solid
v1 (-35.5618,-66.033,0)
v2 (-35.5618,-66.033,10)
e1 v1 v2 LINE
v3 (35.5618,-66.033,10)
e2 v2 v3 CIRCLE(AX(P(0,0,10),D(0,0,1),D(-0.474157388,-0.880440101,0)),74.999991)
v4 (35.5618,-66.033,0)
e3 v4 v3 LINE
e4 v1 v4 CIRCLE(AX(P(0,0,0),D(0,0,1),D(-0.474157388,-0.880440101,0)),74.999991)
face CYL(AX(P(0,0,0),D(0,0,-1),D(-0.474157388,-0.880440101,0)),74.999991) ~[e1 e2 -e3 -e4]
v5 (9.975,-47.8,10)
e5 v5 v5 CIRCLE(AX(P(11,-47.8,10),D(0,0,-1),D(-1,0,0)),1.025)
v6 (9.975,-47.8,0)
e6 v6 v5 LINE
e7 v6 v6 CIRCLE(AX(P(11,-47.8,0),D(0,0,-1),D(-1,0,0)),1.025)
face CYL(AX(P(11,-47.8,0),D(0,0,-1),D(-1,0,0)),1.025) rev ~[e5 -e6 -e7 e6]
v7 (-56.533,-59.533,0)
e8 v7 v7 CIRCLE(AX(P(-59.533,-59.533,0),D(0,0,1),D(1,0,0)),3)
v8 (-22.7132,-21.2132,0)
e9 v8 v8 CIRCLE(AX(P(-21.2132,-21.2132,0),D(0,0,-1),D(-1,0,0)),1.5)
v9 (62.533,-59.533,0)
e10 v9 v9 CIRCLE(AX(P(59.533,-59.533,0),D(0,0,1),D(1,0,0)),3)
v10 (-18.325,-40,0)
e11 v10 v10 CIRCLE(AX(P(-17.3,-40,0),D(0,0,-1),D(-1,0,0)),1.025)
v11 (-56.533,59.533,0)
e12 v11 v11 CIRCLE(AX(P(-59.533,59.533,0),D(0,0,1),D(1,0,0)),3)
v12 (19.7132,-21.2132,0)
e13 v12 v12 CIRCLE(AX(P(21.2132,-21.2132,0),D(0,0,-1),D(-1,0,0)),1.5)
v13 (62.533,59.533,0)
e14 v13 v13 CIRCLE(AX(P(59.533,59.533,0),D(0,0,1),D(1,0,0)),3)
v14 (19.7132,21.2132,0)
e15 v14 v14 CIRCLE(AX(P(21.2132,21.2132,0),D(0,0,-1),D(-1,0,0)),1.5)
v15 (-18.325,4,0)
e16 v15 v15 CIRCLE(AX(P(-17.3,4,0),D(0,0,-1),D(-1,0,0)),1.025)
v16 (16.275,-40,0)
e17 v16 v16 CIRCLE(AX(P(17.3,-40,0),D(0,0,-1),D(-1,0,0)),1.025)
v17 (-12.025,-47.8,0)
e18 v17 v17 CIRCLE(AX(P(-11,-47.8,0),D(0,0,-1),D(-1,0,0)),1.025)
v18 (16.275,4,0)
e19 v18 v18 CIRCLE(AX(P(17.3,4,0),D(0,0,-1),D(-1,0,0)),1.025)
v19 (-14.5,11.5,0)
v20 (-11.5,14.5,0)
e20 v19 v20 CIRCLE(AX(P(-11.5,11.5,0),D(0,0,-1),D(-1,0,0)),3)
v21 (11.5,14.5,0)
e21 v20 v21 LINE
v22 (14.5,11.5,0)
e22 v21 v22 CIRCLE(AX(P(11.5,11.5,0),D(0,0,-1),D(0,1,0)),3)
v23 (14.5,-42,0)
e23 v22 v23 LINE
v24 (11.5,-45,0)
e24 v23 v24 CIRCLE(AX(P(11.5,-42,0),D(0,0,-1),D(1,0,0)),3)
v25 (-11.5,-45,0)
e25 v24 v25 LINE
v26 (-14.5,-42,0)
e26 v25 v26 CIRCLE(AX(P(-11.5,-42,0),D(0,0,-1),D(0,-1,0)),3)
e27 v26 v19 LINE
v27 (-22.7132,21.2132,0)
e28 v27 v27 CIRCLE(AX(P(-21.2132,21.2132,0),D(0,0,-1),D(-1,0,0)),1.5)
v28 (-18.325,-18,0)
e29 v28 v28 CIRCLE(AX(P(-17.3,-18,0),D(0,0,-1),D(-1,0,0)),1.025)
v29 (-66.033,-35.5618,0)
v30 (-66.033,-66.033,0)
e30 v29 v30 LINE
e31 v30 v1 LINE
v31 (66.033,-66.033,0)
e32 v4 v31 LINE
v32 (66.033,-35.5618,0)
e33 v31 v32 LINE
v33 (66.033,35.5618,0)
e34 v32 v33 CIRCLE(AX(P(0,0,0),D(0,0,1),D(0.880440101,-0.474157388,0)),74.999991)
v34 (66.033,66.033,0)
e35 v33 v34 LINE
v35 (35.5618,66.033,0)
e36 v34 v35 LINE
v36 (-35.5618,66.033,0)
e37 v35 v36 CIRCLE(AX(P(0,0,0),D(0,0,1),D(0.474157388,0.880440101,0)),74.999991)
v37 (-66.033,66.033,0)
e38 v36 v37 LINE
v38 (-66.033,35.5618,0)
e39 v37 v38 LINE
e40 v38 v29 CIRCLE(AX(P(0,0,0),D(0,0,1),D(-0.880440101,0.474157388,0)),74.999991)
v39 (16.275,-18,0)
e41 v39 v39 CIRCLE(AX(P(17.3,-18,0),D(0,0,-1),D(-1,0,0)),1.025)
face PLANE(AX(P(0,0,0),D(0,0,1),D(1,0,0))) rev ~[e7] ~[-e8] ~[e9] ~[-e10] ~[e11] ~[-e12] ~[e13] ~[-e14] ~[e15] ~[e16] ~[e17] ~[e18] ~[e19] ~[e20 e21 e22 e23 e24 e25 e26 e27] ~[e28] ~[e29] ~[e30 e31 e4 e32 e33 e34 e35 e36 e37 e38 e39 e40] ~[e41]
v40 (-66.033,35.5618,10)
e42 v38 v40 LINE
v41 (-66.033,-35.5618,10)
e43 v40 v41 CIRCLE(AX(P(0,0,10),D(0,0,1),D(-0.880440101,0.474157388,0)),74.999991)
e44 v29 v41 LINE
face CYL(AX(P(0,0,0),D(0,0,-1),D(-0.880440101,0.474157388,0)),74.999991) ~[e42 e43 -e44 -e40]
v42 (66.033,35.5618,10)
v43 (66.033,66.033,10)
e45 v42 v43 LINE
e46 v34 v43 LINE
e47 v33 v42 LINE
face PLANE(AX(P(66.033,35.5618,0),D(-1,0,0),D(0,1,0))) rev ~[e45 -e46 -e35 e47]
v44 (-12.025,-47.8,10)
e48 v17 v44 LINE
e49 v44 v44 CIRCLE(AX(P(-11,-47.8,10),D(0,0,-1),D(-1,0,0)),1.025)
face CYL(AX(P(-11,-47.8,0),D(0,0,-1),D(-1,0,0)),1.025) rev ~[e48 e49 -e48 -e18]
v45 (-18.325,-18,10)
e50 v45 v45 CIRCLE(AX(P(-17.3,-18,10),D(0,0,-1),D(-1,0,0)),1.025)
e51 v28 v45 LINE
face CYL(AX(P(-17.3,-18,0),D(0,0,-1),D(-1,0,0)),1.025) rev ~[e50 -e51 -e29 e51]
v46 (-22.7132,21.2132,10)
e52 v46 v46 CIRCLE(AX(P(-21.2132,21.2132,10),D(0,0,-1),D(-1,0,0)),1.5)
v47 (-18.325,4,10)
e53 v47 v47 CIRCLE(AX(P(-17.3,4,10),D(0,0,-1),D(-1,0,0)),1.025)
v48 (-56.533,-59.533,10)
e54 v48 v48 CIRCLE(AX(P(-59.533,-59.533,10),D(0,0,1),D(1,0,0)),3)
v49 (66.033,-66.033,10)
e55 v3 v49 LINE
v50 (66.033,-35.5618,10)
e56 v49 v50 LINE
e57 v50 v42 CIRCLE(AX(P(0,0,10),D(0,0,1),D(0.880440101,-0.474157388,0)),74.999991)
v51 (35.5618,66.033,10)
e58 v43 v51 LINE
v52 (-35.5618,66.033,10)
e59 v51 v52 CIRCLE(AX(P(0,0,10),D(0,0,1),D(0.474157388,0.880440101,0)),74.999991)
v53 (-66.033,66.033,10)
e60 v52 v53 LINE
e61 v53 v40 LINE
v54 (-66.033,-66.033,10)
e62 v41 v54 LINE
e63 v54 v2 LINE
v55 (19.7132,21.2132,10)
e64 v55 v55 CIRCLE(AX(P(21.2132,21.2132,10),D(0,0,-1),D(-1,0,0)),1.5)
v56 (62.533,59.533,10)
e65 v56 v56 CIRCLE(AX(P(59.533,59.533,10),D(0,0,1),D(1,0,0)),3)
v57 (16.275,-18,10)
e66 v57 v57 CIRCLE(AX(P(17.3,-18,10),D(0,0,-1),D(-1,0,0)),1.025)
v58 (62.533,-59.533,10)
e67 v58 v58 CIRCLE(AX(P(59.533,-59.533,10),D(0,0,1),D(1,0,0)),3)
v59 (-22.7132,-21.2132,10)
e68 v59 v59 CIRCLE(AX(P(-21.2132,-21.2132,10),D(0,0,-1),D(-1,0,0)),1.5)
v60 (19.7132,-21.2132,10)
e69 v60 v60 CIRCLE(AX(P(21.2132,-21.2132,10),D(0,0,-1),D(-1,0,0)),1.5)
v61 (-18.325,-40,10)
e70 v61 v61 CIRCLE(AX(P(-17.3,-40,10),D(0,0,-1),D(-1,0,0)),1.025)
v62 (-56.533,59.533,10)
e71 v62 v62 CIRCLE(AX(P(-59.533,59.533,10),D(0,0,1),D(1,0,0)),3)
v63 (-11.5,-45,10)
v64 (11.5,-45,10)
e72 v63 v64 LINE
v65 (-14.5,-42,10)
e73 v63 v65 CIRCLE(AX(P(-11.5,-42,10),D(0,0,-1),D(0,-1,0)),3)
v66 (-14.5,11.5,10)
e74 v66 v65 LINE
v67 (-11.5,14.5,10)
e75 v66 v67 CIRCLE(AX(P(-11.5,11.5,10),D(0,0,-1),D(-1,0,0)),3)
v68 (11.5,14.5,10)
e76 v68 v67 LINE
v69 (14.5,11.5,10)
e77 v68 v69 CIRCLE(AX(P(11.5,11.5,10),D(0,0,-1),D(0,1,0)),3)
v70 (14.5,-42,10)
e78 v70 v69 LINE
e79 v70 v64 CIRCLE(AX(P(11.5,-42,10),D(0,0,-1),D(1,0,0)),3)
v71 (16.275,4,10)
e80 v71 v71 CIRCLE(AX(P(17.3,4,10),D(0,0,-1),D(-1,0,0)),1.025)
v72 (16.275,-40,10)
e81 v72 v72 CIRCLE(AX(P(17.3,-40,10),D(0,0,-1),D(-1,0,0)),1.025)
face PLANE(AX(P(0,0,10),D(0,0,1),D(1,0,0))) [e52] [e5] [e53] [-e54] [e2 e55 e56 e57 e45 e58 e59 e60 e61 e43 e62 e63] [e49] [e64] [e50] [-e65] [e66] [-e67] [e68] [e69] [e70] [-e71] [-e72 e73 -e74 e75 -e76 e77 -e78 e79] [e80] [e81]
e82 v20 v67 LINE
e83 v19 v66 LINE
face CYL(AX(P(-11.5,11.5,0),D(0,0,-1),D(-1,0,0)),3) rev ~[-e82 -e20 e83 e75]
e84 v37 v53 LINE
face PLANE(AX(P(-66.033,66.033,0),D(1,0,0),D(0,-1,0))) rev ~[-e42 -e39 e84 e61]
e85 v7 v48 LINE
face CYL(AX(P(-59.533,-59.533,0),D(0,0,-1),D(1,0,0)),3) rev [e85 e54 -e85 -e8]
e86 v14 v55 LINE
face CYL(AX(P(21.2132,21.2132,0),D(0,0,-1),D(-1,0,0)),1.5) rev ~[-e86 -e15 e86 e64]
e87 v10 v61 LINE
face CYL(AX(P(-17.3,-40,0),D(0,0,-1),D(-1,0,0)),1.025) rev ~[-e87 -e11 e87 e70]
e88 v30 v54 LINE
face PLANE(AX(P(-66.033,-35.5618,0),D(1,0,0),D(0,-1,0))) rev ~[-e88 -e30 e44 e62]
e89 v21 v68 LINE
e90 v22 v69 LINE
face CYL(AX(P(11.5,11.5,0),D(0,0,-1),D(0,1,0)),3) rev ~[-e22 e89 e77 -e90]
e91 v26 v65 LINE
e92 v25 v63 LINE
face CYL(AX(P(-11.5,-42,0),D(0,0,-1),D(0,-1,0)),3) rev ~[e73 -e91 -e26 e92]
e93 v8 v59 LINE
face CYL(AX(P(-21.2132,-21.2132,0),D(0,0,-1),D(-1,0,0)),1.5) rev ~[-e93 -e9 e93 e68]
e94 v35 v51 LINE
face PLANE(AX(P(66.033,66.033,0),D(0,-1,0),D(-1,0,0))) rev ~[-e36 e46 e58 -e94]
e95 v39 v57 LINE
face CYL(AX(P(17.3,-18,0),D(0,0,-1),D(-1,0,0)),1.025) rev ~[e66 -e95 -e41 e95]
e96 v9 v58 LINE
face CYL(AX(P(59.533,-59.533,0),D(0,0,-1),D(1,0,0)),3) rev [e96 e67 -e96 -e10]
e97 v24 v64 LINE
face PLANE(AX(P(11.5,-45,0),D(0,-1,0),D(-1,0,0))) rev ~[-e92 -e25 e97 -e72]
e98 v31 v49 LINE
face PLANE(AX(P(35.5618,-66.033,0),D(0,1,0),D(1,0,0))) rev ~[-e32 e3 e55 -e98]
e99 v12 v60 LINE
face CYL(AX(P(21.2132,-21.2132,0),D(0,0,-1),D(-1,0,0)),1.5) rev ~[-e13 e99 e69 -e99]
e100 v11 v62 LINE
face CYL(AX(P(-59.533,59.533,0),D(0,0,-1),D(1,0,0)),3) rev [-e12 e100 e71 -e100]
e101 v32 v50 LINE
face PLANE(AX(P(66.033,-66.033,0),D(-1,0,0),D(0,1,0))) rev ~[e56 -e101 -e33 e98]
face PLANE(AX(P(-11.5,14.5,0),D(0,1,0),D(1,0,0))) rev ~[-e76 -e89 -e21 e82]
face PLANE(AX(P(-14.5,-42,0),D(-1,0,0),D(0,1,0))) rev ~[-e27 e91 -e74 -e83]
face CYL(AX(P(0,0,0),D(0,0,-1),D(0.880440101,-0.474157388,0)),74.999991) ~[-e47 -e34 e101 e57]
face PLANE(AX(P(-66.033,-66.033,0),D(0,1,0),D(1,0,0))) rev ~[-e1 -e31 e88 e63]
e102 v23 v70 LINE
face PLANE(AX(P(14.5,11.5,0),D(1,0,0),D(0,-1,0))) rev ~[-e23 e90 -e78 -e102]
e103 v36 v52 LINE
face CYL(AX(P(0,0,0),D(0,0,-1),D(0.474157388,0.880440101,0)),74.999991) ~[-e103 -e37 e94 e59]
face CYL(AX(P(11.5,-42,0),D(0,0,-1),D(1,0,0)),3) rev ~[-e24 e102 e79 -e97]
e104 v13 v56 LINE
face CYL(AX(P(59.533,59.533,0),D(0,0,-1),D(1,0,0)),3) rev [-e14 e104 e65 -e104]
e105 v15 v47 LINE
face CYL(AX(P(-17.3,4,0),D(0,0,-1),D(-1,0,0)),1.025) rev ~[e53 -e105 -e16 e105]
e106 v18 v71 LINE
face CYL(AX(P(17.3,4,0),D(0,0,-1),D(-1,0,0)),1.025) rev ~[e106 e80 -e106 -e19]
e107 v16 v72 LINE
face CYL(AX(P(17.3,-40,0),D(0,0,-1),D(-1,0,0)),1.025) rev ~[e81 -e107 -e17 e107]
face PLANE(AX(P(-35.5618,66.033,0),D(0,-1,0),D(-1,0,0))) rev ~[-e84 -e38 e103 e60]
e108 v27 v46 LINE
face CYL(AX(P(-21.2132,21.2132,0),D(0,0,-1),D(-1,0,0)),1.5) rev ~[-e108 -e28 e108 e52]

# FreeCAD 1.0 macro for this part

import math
import FreeCAD as App
import Part
import Sketcher
from FreeCAD import Vector
Q = App.Units.Quantity

doc = App.newDocument("Part")
body = doc.addObject("PartDesign::Body", "Body")

# Sketch on XY plane
sketch1 = doc.addObject("Sketcher::SketchObject", "Sketch")
body.addObject(sketch1)
sketch1.AttachmentSupport = (doc.XY_Plane, [""])
sketch1.MapMode = "FlatFace"
sketch1.addGeometry([
    Part.LineSegment(Vector(66, 66, 0), Vector(35.6, 66, 0)),  # 0
    Part.ArcOfCircle(Part.Circle(Vector(0, 0, 0), Vector(0, 0, 1), 75), math.radians(62), math.radians(118)),  # 1
    Part.LineSegment(Vector(-35.6, 66, 0), Vector(-66, 66, 0)),  # 2
    Part.LineSegment(Vector(-66, 66, 0), Vector(-66, 35.6, 0)),  # 3
    Part.ArcOfCircle(Part.Circle(Vector(0, 0, 0), Vector(0, 0, 1), 75), math.radians(152), math.radians(208)),  # 4
    Part.LineSegment(Vector(-66, -35.6, 0), Vector(-66, -66, 0)),  # 5
    Part.LineSegment(Vector(-66, -66, 0), Vector(-35.6, -66, 0)),  # 6
    Part.ArcOfCircle(Part.Circle(Vector(0, 0, 0), Vector(0, 0, 1), 75), math.radians(-118), math.radians(-62)),  # 7
    Part.LineSegment(Vector(35.6, -66, 0), Vector(66, -66, 0)),  # 8
    Part.LineSegment(Vector(66, -66, 0), Vector(66, -35.6, 0)),  # 9
    Part.ArcOfCircle(Part.Circle(Vector(0, 0, 0), Vector(0, 0, 1), 75), math.radians(-28), math.radians(28)),  # 10
    Part.LineSegment(Vector(66, 35.6, 0), Vector(66, 66, 0)),  # 11
    Part.Circle(Vector(-59.5, -59.5, 0), Vector(0, 0, 1), 3),  # 12
    Part.Circle(Vector(59.5, -59.5, 0), Vector(0, 0, 1), 3),  # 13
    Part.Circle(Vector(-59.5, 59.5, 0), Vector(0, 0, 1), 3),  # 14
    Part.Circle(Vector(59.5, 59.5, 0), Vector(0, 0, 1), 3),  # 15
], False)
sketch1.addConstraint([
    Sketcher.Constraint("Coincident", 0, 2, 1, 1),
    Sketcher.Constraint("Coincident", 1, 2, 2, 1),
    Sketcher.Constraint("Coincident", 2, 2, 3, 1),
    Sketcher.Constraint("Coincident", 3, 2, 4, 1),
    Sketcher.Constraint("Coincident", 4, 2, 5, 1),
    Sketcher.Constraint("Coincident", 5, 2, 6, 1),
    Sketcher.Constraint("Coincident", 6, 2, 7, 1),
    Sketcher.Constraint("Coincident", 7, 2, 8, 1),
    Sketcher.Constraint("Coincident", 8, 2, 9, 1),
    Sketcher.Constraint("Coincident", 9, 2, 10, 1),
    Sketcher.Constraint("Coincident", 10, 2, 11, 1),
    Sketcher.Constraint("Coincident", 11, 2, 0, 1),
    Sketcher.Constraint("Horizontal", 0),
    Sketcher.Constraint("Horizontal", 2),
    Sketcher.Constraint("Vertical", 3),
    Sketcher.Constraint("Vertical", 5),
    Sketcher.Constraint("Horizontal", 6),
    Sketcher.Constraint("Horizontal", 8),
    Sketcher.Constraint("Vertical", 9),
    Sketcher.Constraint("Vertical", 11),
    Sketcher.Constraint("Coincident", 1, 3, -1, 1),
    Sketcher.Constraint("Coincident", 4, 3, -1, 1),
    Sketcher.Constraint("Coincident", 7, 3, -1, 1),
    Sketcher.Constraint("Coincident", 10, 3, -1, 1),
    Sketcher.Constraint("Equal", 1, 4),
    Sketcher.Constraint("Equal", 4, 7),
    Sketcher.Constraint("Equal", 7, 10),
    Sketcher.Constraint("Equal", 12, 13),
    Sketcher.Constraint("Equal", 13, 14),
    Sketcher.Constraint("Equal", 14, 15),
    Sketcher.Constraint("Symmetric", 13, 3, 14, 3, -1, 1),
    Sketcher.Constraint("Symmetric", 12, 3, 15, 3, -1, 1),
    Sketcher.Constraint("Symmetric", 2, 2, 8, 2, -1, 1),
    Sketcher.Constraint("Symmetric", 5, 2, 11, 2, -1, 1),
    Sketcher.Constraint("Symmetric", 12, 3, 13, 3, -2),
    Sketcher.Constraint("Symmetric", 5, 2, 8, 2, -2),
    Sketcher.Constraint("Equal", 8, 3),
    Sketcher.Constraint("Diameter", 12, Q("6 mm")),
    Sketcher.Constraint("Radius", 1, Q("75 mm")),
    Sketcher.Constraint("DistanceY", 15, 3, 0, 2, Q("6.5 mm")),
    Sketcher.Constraint("DistanceX", 2, 2, 14, 3, Q("6.5 mm")),
    Sketcher.Constraint("DistanceX", 0, 2, 0, 1, Q("30.4712 mm")),
])
pad1 = doc.addObject("PartDesign::Pad", "Pad")
body.addObject(pad1)
pad1.Profile = sketch1
pad1.Length = 10

# Sketch on XY plane
sketch2 = doc.addObject("Sketcher::SketchObject", "Sketch001")
body.addObject(sketch2)
sketch2.AttachmentSupport = (doc.XY_Plane, [""])
sketch2.MapMode = "FlatFace"
sketch2.addGeometry([
    Part.Circle(Vector(21.2, 21.2, 0), Vector(0, 0, 1), 1.5),
    Part.Circle(Vector(21.2, -21.2, 0), Vector(0, 0, 1), 1.5),
    Part.Circle(Vector(-21.2, -21.2, 0), Vector(0, 0, 1), 1.5),
    Part.Circle(Vector(-21.2, 21.2, 0), Vector(0, 0, 1), 1.5),
], False)
sketch2.addConstraint([
    Sketcher.Constraint("Equal", 0, 1),
    Sketcher.Constraint("Equal", 1, 2),
    Sketcher.Constraint("Equal", 2, 3),
    Sketcher.Constraint("Symmetric", 0, 3, 2, 3, -1, 1),
    Sketcher.Constraint("Symmetric", 1, 3, 3, 3, -1, 1),
    Sketcher.Constraint("Symmetric", 1, 3, 2, 3, -2),
    Sketcher.Constraint("Diameter", 0, Q("3 mm")),
    Sketcher.Constraint("DistanceX", -1, 1, 0, 3, Q("21.2132 mm")),
    Sketcher.Constraint("DistanceY", -1, 1, 0, 3, Q("21.2132 mm")),
])
pocket1 = doc.addObject("PartDesign::Pocket", "Pocket")
body.addObject(pocket1)
pocket1.Profile = sketch2
pocket1.Length = 10
pocket1.Reversed = True

# Sketch on XY plane
sketch3 = doc.addObject("Sketcher::SketchObject", "Sketch002")
body.addObject(sketch3)
sketch3.AttachmentSupport = (doc.XY_Plane, [""])
sketch3.MapMode = "FlatFace"
sketch3.addGeometry([
    Part.ArcOfCircle(Part.Circle(Vector(-11.5, 11.5, 0), Vector(0, 0, 1), 3), math.radians(90), math.radians(180)),  # 0
    Part.LineSegment(Vector(-11.5, 14.5, 0), Vector(11.5, 14.5, 0)),  # 1
    Part.ArcOfCircle(Part.Circle(Vector(11.5, 11.5, 0), Vector(0, 0, 1), 3), math.radians(0), math.radians(90)),  # 2
    Part.LineSegment(Vector(14.5, 11.5, 0), Vector(14.5, -42, 0)),  # 3
    Part.ArcOfCircle(Part.Circle(Vector(11.5, -42, 0), Vector(0, 0, 1), 3), math.radians(-90), math.radians(0)),  # 4
    Part.LineSegment(Vector(11.5, -45, 0), Vector(-11.5, -45, 0)),  # 5
    Part.ArcOfCircle(Part.Circle(Vector(-11.5, -42, 0), Vector(0, 0, 1), 3), math.radians(180), math.radians(270)),  # 6
    Part.LineSegment(Vector(-14.5, -42, 0), Vector(-14.5, 11.5, 0)),  # 7
    Part.Circle(Vector(-11, -47.8, 0), Vector(0, 0, 1), 1),  # 8
    Part.Circle(Vector(11, -47.8, 0), Vector(0, 0, 1), 1),  # 9
    Part.Circle(Vector(17.3, -40, 0), Vector(0, 0, 1), 1),  # 10
    Part.Circle(Vector(-17.3, -40, 0), Vector(0, 0, 1), 1),  # 11
    Part.Circle(Vector(-17.3, -18, 0), Vector(0, 0, 1), 1),  # 12
    Part.Circle(Vector(-17.3, 4, 0), Vector(0, 0, 1), 1),  # 13
    Part.Circle(Vector(17.3, 4, 0), Vector(0, 0, 1), 1),  # 14
    Part.Circle(Vector(17.3, -18, 0), Vector(0, 0, 1), 1),  # 15
], False)
sketch3.addConstraint([
    Sketcher.Constraint("Tangent", 0, 1, 1, 1),
    Sketcher.Constraint("Tangent", 1, 2, 2, 2),
    Sketcher.Constraint("Tangent", 2, 1, 3, 1),
    Sketcher.Constraint("Tangent", 3, 2, 4, 2),
    Sketcher.Constraint("Tangent", 4, 1, 5, 1),
    Sketcher.Constraint("Tangent", 5, 2, 6, 2),
    Sketcher.Constraint("Tangent", 6, 1, 7, 1),
    Sketcher.Constraint("Tangent", 7, 2, 0, 2),
    Sketcher.Constraint("Horizontal", 1),
    Sketcher.Constraint("Vertical", 3),
    Sketcher.Constraint("Horizontal", 5),
    Sketcher.Constraint("Vertical", 7),
    Sketcher.Constraint("Equal", 0, 2),
    Sketcher.Constraint("Equal", 2, 4),
    Sketcher.Constraint("Equal", 4, 6),
    Sketcher.Constraint("Equal", 8, 9),
    Sketcher.Constraint("Equal", 9, 10),
    Sketcher.Constraint("Equal", 10, 11),
    Sketcher.Constraint("Equal", 11, 12),
    Sketcher.Constraint("Equal", 12, 13),
    Sketcher.Constraint("Equal", 13, 14),
    Sketcher.Constraint("Equal", 14, 15),
    Sketcher.Constraint("Symmetric", 8, 3, 9, 3, -2),
    Sketcher.Constraint("Symmetric", 10, 3, 11, 3, -2),
    Sketcher.Constraint("Symmetric", 13, 3, 14, 3, -2),
    Sketcher.Constraint("Symmetric", 12, 3, 15, 3, -2),
    Sketcher.Constraint("Vertical", 11, 3, 12, 3),
    Sketcher.Constraint("Vertical", 12, 3, 13, 3),
    Sketcher.Constraint("Radius", 0, Q("3 mm")),
    Sketcher.Constraint("Diameter", 8, Q("2.05 mm")),
    Sketcher.Constraint("DistanceX", 1, 1, 1, 2, Q("23 mm")),
    Sketcher.Constraint("DistanceY", 3, 2, 3, 1, Q("53.5 mm")),
    Sketcher.Constraint("DistanceY", 4, 3, -1, 1, Q("42 mm")),
    Sketcher.Constraint("DistanceX", 8, 3, -1, 1, Q("11 mm")),
    Sketcher.Constraint("DistanceY", 10, 3, -1, 1, Q("40 mm")),
    Sketcher.Constraint("DistanceY", 12, 3, -1, 1, Q("18 mm")),
    Sketcher.Constraint("DistanceY", -1, 1, 13, 3, Q("4 mm")),
    Sketcher.Constraint("DistanceX", 0, 3, -1, 1, Q("11.5 mm")),
    Sketcher.Constraint("DistanceY", 8, 3, -1, 1, Q("47.8 mm")),
    Sketcher.Constraint("DistanceX", -1, 1, 10, 3, Q("17.3 mm")),
])
pocket2 = doc.addObject("PartDesign::Pocket", "Pocket001")
body.addObject(pocket2)
pocket2.Profile = sketch3
pocket2.Length = 20.75
pocket2.Reversed = True

doc.recompute()
